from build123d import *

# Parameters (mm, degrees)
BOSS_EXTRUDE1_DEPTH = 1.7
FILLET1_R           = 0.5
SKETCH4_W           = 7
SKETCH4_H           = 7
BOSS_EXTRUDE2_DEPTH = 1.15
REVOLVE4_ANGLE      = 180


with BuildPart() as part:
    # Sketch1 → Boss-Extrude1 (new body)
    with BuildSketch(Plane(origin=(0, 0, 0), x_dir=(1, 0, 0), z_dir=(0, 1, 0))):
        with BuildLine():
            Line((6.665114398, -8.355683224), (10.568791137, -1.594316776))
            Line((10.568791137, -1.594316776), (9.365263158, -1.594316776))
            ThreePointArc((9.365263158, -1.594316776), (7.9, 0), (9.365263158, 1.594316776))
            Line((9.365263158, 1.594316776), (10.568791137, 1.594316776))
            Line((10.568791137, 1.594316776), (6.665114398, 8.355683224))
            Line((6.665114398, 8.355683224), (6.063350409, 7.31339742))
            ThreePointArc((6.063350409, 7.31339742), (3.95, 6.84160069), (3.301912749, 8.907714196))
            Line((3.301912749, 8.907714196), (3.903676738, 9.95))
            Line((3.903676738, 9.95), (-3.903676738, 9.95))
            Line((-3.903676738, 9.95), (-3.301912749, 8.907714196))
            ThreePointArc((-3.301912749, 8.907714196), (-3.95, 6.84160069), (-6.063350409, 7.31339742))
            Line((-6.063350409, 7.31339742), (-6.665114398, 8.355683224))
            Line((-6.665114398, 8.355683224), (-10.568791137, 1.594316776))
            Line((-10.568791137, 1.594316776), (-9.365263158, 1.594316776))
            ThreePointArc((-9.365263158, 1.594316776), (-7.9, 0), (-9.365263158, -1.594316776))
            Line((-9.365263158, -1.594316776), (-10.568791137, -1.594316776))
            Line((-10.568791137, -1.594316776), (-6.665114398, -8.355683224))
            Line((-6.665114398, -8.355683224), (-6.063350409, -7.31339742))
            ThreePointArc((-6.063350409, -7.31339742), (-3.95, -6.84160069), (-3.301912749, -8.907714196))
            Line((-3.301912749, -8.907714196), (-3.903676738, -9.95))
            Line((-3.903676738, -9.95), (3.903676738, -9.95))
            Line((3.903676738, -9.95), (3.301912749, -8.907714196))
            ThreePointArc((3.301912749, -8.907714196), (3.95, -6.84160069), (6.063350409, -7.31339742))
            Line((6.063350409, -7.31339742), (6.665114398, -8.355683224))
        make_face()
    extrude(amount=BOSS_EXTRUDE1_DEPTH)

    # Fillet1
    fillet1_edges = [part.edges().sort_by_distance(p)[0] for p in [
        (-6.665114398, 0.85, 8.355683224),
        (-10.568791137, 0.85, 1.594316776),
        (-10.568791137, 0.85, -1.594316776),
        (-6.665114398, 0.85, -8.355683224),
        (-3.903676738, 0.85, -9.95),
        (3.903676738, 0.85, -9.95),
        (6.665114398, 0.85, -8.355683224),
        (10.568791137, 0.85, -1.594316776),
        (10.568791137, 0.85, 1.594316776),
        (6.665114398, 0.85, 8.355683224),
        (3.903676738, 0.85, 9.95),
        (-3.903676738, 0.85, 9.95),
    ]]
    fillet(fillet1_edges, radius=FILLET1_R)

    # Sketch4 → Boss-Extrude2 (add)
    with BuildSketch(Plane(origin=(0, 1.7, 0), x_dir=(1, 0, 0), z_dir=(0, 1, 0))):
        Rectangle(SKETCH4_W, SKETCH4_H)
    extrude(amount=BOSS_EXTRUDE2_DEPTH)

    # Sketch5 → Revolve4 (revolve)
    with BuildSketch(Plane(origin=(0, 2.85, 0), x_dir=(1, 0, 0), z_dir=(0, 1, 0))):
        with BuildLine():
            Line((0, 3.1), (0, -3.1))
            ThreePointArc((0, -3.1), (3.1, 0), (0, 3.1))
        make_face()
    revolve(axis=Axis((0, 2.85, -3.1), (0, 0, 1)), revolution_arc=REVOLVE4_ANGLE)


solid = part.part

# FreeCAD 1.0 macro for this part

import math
import FreeCAD as App
import Part
import Sketcher
Q = App.Units.Quantity


def edges_at(feature, points):
    """Names of the edges that pass closest to the given points."""
    edges = feature.Shape.Edges
    near = lambda p: min(range(len(edges)), key=lambda i: edges[i].distToShape(Part.Vertex(*p))[0])
    return sorted({f"Edge{near(p) + 1}" for p in points})

doc = App.newDocument("Part")
params = doc.addObject("Spreadsheet::Sheet", "Params")
for row, (alias, value) in enumerate([
    ("sketch1_radius", "1.6 mm"),
    ("pad1_length", "1.7 mm"),
    ("fillet_radius", "0.5 mm"),
    ("sketch2_width", "7 mm"),
    ("pad2_length", "1.15 mm"),
    ("sketch3_radius", "3.1 mm"),
    ("revolution_angle", "180 deg"),
], start=1):
    params.set(f"A{row}", alias)
    params.set(f"B{row}", "=" + value)
    params.setAlias(f"B{row}", alias)

body = doc.addObject("PartDesign::Body", "Body")

sketch1 = doc.addObject("Sketcher::SketchObject", "Sketch")
body.addObject(sketch1)
sketch1.AttachmentSupport = (doc.XZ_Plane, [""])
sketch1.MapMode = "FlatFace"
sketch1.addGeometry(Part.LineSegment(App.Vector(6.7, 8.4, 0), App.Vector(10.6, 1.6, 0)), False)
sketch1.addGeometry(Part.LineSegment(App.Vector(10.6, 1.6, 0), App.Vector(9.4, 1.6, 0)), False)
sketch1.addGeometry(Part.ArcOfCircle(Part.Circle(App.Vector(9.5, 0, 0), App.Vector(0, 0, 1), 1.6), math.radians(95), math.radians(265)), False)
sketch1.addGeometry(Part.LineSegment(App.Vector(9.4, -1.6, 0), App.Vector(10.6, -1.6, 0)), False)
sketch1.addGeometry(Part.LineSegment(App.Vector(10.6, -1.6, 0), App.Vector(6.7, -8.4, 0)), False)
sketch1.addGeometry(Part.LineSegment(App.Vector(6.7, -8.4, 0), App.Vector(6.1, -7.3, 0)), False)
sketch1.addGeometry(Part.ArcOfCircle(Part.Circle(App.Vector(4.8, -8.2, 0), App.Vector(0, 0, 1), 1.6), math.radians(35), math.radians(205)), False)
sketch1.addGeometry(Part.LineSegment(App.Vector(3.3, -8.9, 0), App.Vector(3.9, -9.9, 0)), False)
sketch1.addGeometry(Part.LineSegment(App.Vector(3.9, -9.9, 0), App.Vector(-3.9, -9.9, 0)), False)
sketch1.addGeometry(Part.LineSegment(App.Vector(-3.9, -9.9, 0), App.Vector(-3.3, -8.9, 0)), False)
sketch1.addGeometry(Part.ArcOfCircle(Part.Circle(App.Vector(-4.8, -8.2, 0), App.Vector(0, 0, 1), 1.6), math.radians(-25), math.radians(145)), False)
sketch1.addGeometry(Part.LineSegment(App.Vector(-6.1, -7.3, 0), App.Vector(-6.7, -8.4, 0)), False)
sketch1.addGeometry(Part.LineSegment(App.Vector(-6.7, -8.4, 0), App.Vector(-10.6, -1.6, 0)), False)
sketch1.addGeometry(Part.LineSegment(App.Vector(-10.6, -1.6, 0), App.Vector(-9.4, -1.6, 0)), False)
sketch1.addGeometry(Part.ArcOfCircle(Part.Circle(App.Vector(-9.5, 0, 0), App.Vector(0, 0, 1), 1.6), math.radians(-85), math.radians(85)), False)
sketch1.addGeometry(Part.LineSegment(App.Vector(-9.4, 1.6, 0), App.Vector(-10.6, 1.6, 0)), False)
sketch1.addGeometry(Part.LineSegment(App.Vector(-10.6, 1.6, 0), App.Vector(-6.7, 8.4, 0)), False)
sketch1.addGeometry(Part.LineSegment(App.Vector(-6.7, 8.4, 0), App.Vector(-6.1, 7.3, 0)), False)
sketch1.addGeometry(Part.ArcOfCircle(Part.Circle(App.Vector(-4.8, 8.2, 0), App.Vector(0, 0, 1), 1.6), math.radians(-145), math.radians(25)), False)
sketch1.addGeometry(Part.LineSegment(App.Vector(-3.3, 8.9, 0), App.Vector(-3.9, 9.9, 0)), False)
sketch1.addGeometry(Part.LineSegment(App.Vector(-3.9, 9.9, 0), App.Vector(3.9, 9.9, 0)), False)
sketch1.addGeometry(Part.LineSegment(App.Vector(3.9, 9.9, 0), App.Vector(3.3, 8.9, 0)), False)
sketch1.addGeometry(Part.ArcOfCircle(Part.Circle(App.Vector(4.8, 8.2, 0), App.Vector(0, 0, 1), 1.6), math.radians(155), math.radians(325)), False)
sketch1.addGeometry(Part.LineSegment(App.Vector(6.1, 7.3, 0), App.Vector(6.7, 8.4, 0)), False)
sketch1.addConstraint(Sketcher.Constraint("Coincident", 0, 2, 1, 1))
sketch1.addConstraint(Sketcher.Constraint("Coincident", 1, 2, 2, 1))
sketch1.addConstraint(Sketcher.Constraint("Coincident", 2, 2, 3, 1))
sketch1.addConstraint(Sketcher.Constraint("Coincident", 3, 2, 4, 1))
sketch1.addConstraint(Sketcher.Constraint("Coincident", 4, 2, 5, 1))
sketch1.addConstraint(Sketcher.Constraint("Coincident", 5, 2, 6, 1))
sketch1.addConstraint(Sketcher.Constraint("Coincident", 6, 2, 7, 1))
sketch1.addConstraint(Sketcher.Constraint("Coincident", 7, 2, 8, 1))
sketch1.addConstraint(Sketcher.Constraint("Coincident", 8, 2, 9, 1))
sketch1.addConstraint(Sketcher.Constraint("Coincident", 9, 2, 10, 1))
sketch1.addConstraint(Sketcher.Constraint("Coincident", 10, 2, 11, 1))
sketch1.addConstraint(Sketcher.Constraint("Coincident", 11, 2, 12, 1))
sketch1.addConstraint(Sketcher.Constraint("Coincident", 12, 2, 13, 1))
sketch1.addConstraint(Sketcher.Constraint("Coincident", 13, 2, 14, 1))
sketch1.addConstraint(Sketcher.Constraint("Coincident", 14, 2, 15, 1))
sketch1.addConstraint(Sketcher.Constraint("Coincident", 15, 2, 16, 1))
sketch1.addConstraint(Sketcher.Constraint("Coincident", 16, 2, 17, 1))
sketch1.addConstraint(Sketcher.Constraint("Coincident", 17, 2, 18, 1))
sketch1.addConstraint(Sketcher.Constraint("Coincident", 18, 2, 19, 1))
sketch1.addConstraint(Sketcher.Constraint("Coincident", 19, 2, 20, 1))
sketch1.addConstraint(Sketcher.Constraint("Coincident", 20, 2, 21, 1))
sketch1.addConstraint(Sketcher.Constraint("Coincident", 21, 2, 22, 1))
sketch1.addConstraint(Sketcher.Constraint("Coincident", 22, 2, 23, 1))
sketch1.addConstraint(Sketcher.Constraint("Coincident", 23, 2, 0, 1))
sketch1.addConstraint(Sketcher.Constraint("Horizontal", 1))
sketch1.addConstraint(Sketcher.Constraint("Horizontal", 3))
sketch1.addConstraint(Sketcher.Constraint("Horizontal", 8))
sketch1.addConstraint(Sketcher.Constraint("Horizontal", 13))
sketch1.addConstraint(Sketcher.Constraint("Horizontal", 15))
sketch1.addConstraint(Sketcher.Constraint("Horizontal", 20))
sketch1.addConstraint(Sketcher.Constraint("Equal", 2, 6))
sketch1.addConstraint(Sketcher.Constraint("Equal", 6, 10))
sketch1.addConstraint(Sketcher.Constraint("Equal", 10, 14))
sketch1.addConstraint(Sketcher.Constraint("Equal", 14, 18))
sketch1.addConstraint(Sketcher.Constraint("Equal", 18, 22))
sketch1.addConstraint(Sketcher.Constraint("Symmetric", 2, 3, 14, 3, -1, 1))
sketch1.addConstraint(Sketcher.Constraint("Symmetric", 6, 3, 18, 3, -1, 1))
sketch1.addConstraint(Sketcher.Constraint("Symmetric", 10, 3, 22, 3, -1, 1))
sketch1.addConstraint(Sketcher.Constraint("Symmetric", 0, 2, 12, 2, -1, 1))
sketch1.addConstraint(Sketcher.Constraint("Symmetric", 3, 2, 15, 2, -1, 1))
sketch1.addConstraint(Sketcher.Constraint("Symmetric", 4, 2, 16, 2, -1, 1))
sketch1.addConstraint(Sketcher.Constraint("Symmetric", 7, 2, 19, 2, -1, 1))
sketch1.addConstraint(Sketcher.Constraint("Symmetric", 11, 2, 23, 2, -1, 1))
sketch1.addConstraint(Sketcher.Constraint("Symmetric", 6, 3, 10, 3, -2))
sketch1.addConstraint(Sketcher.Constraint("Symmetric", 4, 2, 11, 2, -2))
sketch1.addConstraint(Sketcher.Constraint("Symmetric", 3, 2, 12, 2, -2))
sketch1.addConstraint(Sketcher.Constraint("PointOnObject", 2, 3, -1))
sketch1.addConstraint(Sketcher.Constraint("Parallel", 0, 5))
sketch1.addConstraint(Sketcher.Constraint("Parallel", 5, 7))
sketch1.addConstraint(Sketcher.Constraint("Parallel", 4, 9))
sketch1.addConstraint(Sketcher.Constraint("Parallel", 9, 11))
sketch1.addConstraint(Sketcher.Constraint("Parallel", 12, 17))
sketch1.addConstraint(Sketcher.Constraint("Parallel", 17, 19))
sketch1.addConstraint(Sketcher.Constraint("Parallel", 16, 21))
sketch1.addConstraint(Sketcher.Constraint("Parallel", 21, 23))
sketch1.addConstraint(Sketcher.Constraint("Horizontal", 6, 2, 9, 2))
sketch1.addConstraint(Sketcher.Constraint("Horizontal", 18, 2, 21, 2))
sketch1.addConstraint(Sketcher.Constraint("Equal", 5, 7))
sketch1.addConstraint(Sketcher.Constraint("Radius", 2, Q("1.6 mm")))
sketch1.addConstraint(Sketcher.Constraint("Angle", 0, Q("-60 deg")))
sketch1.addConstraint(Sketcher.Constraint("DistanceX", 14, 3, 2, 3, Q("19 mm")))
sketch1.addConstraint(Sketcher.Constraint("DistanceX", 10, 3, 6, 3, Q("9.5 mm")))
sketch1.addConstraint(Sketcher.Constraint("DistanceY", 7, 2, -1, 1, Q("9.95 mm")))
sketch1.addConstraint(Sketcher.Constraint("DistanceY", 4, 2, 1, 2, Q("9.95 mm")))
sketch1.addConstraint(Sketcher.Constraint("DistanceX", 6, 2, 4, 2, Q("3.363202 mm")))
sketch1.addConstraint(Sketcher.Constraint("DistanceX", 1, 2, 1, 1, Q("1.203528 mm")))
sketch1.addConstraint(Sketcher.Constraint("DistanceX", 8, 2, 8, 1, Q("7.807353 mm")))
sketch1.setExpression("Constraints[58]", "Params.sketch1_radius")
pad1 = doc.addObject("PartDesign::Pad", "Pad")
body.addObject(pad1)
pad1.Profile = sketch1
pad1.setExpression("Length", "Params.pad1_length")
pad1.Reversed = True
doc.recompute()

fillet = doc.addObject("PartDesign::Fillet", "Fillet")
body.addObject(fillet)
fillet.Base = (pad1, edges_at(pad1, [
    (-6.665, 0.85, 8.356),
    (-10.569, 0.85, 1.594),
    (-10.569, 0.85, -1.594),
    (-6.665, 0.85, -8.356),
    (-3.904, 0.85, -9.95),
    (3.904, 0.85, -9.95),
    (6.665, 0.85, -8.356),
    (10.569, 0.85, -1.594),
    (10.569, 0.85, 1.594),
    (6.665, 0.85, 8.356),
    (3.904, 0.85, 9.95),
    (-3.904, 0.85, 9.95),
]))
fillet.setExpression("Radius", "Params.fillet_radius")

sketch2 = doc.addObject("Sketcher::SketchObject", "Sketch001")
body.addObject(sketch2)
sketch2.AttachmentSupport = (doc.XZ_Plane, [""])
sketch2.MapMode = "FlatFace"
sketch2.AttachmentOffset = App.Placement(App.Vector(0, 0, -1.7), App.Rotation())
sketch2.addGeometry(Part.LineSegment(App.Vector(-4, -4, 0), App.Vector(-4, 4, 0)), False)
sketch2.addGeometry(Part.LineSegment(App.Vector(-4, 4, 0), App.Vector(4, 4, 0)), False)
sketch2.addGeometry(Part.LineSegment(App.Vector(4, 4, 0), App.Vector(4, -4, 0)), False)
sketch2.addGeometry(Part.LineSegment(App.Vector(4, -4, 0), App.Vector(-4, -4, 0)), False)
sketch2.addConstraint(Sketcher.Constraint("Coincident", 0, 2, 1, 1))
sketch2.addConstraint(Sketcher.Constraint("Coincident", 1, 2, 2, 1))
sketch2.addConstraint(Sketcher.Constraint("Coincident", 2, 2, 3, 1))
sketch2.addConstraint(Sketcher.Constraint("Coincident", 3, 2, 0, 1))
sketch2.addConstraint(Sketcher.Constraint("Vertical", 0))
sketch2.addConstraint(Sketcher.Constraint("Horizontal", 1))
sketch2.addConstraint(Sketcher.Constraint("Vertical", 2))
sketch2.addConstraint(Sketcher.Constraint("Horizontal", 3))
sketch2.addConstraint(Sketcher.Constraint("Symmetric", 0, 2, 2, 2, -1, 1))
sketch2.addConstraint(Sketcher.Constraint("Equal", 3, 0))
sketch2.addConstraint(Sketcher.Constraint("DistanceX", 1, 1, 1, 2, Q("7 mm")))
sketch2.setExpression("Constraints[10]", "Params.sketch2_width")
pad2 = doc.addObject("PartDesign::Pad", "Pad001")
body.addObject(pad2)
pad2.Profile = sketch2
pad2.setExpression("Length", "Params.pad2_length")
pad2.Reversed = True

sketch3 = doc.addObject("Sketcher::SketchObject", "Sketch002")
body.addObject(sketch3)
sketch3.AttachmentSupport = (doc.XZ_Plane, [""])
sketch3.MapMode = "FlatFace"
sketch3.AttachmentOffset = App.Placement(App.Vector(0, 0, -2.85), App.Rotation())
sketch3.addGeometry(Part.LineSegment(App.Vector(0, -3.1, 0), App.Vector(0, 3.1, 0)), False)
sketch3.addGeometry(Part.ArcOfCircle(Part.Circle(App.Vector(0, 0, 0), App.Vector(0, 0, 1), 3.1), math.radians(-90), math.radians(90)), False)
sketch3.addConstraint(Sketcher.Constraint("Coincident", 0, 1, 1, 1))
sketch3.addConstraint(Sketcher.Constraint("Coincident", 1, 2, 0, 2))
sketch3.addConstraint(Sketcher.Constraint("Vertical", 0))
sketch3.addConstraint(Sketcher.Constraint("Coincident", 1, 3, -1, 1))
sketch3.addConstraint(Sketcher.Constraint("PointOnObject", 0, 1, -2))
sketch3.addConstraint(Sketcher.Constraint("Radius", 1, Q("3.1 mm")))
sketch3.setExpression("Constraints[5]", "Params.sketch3_radius")
revolution = doc.addObject("PartDesign::Revolution", "Revolution")
body.addObject(revolution)
revolution.Profile = sketch3
revolution.ReferenceAxis = (sketch3, ["V_Axis"])
revolution.setExpression("Angle", "Params.revolution_angle")

doc.recompute()
